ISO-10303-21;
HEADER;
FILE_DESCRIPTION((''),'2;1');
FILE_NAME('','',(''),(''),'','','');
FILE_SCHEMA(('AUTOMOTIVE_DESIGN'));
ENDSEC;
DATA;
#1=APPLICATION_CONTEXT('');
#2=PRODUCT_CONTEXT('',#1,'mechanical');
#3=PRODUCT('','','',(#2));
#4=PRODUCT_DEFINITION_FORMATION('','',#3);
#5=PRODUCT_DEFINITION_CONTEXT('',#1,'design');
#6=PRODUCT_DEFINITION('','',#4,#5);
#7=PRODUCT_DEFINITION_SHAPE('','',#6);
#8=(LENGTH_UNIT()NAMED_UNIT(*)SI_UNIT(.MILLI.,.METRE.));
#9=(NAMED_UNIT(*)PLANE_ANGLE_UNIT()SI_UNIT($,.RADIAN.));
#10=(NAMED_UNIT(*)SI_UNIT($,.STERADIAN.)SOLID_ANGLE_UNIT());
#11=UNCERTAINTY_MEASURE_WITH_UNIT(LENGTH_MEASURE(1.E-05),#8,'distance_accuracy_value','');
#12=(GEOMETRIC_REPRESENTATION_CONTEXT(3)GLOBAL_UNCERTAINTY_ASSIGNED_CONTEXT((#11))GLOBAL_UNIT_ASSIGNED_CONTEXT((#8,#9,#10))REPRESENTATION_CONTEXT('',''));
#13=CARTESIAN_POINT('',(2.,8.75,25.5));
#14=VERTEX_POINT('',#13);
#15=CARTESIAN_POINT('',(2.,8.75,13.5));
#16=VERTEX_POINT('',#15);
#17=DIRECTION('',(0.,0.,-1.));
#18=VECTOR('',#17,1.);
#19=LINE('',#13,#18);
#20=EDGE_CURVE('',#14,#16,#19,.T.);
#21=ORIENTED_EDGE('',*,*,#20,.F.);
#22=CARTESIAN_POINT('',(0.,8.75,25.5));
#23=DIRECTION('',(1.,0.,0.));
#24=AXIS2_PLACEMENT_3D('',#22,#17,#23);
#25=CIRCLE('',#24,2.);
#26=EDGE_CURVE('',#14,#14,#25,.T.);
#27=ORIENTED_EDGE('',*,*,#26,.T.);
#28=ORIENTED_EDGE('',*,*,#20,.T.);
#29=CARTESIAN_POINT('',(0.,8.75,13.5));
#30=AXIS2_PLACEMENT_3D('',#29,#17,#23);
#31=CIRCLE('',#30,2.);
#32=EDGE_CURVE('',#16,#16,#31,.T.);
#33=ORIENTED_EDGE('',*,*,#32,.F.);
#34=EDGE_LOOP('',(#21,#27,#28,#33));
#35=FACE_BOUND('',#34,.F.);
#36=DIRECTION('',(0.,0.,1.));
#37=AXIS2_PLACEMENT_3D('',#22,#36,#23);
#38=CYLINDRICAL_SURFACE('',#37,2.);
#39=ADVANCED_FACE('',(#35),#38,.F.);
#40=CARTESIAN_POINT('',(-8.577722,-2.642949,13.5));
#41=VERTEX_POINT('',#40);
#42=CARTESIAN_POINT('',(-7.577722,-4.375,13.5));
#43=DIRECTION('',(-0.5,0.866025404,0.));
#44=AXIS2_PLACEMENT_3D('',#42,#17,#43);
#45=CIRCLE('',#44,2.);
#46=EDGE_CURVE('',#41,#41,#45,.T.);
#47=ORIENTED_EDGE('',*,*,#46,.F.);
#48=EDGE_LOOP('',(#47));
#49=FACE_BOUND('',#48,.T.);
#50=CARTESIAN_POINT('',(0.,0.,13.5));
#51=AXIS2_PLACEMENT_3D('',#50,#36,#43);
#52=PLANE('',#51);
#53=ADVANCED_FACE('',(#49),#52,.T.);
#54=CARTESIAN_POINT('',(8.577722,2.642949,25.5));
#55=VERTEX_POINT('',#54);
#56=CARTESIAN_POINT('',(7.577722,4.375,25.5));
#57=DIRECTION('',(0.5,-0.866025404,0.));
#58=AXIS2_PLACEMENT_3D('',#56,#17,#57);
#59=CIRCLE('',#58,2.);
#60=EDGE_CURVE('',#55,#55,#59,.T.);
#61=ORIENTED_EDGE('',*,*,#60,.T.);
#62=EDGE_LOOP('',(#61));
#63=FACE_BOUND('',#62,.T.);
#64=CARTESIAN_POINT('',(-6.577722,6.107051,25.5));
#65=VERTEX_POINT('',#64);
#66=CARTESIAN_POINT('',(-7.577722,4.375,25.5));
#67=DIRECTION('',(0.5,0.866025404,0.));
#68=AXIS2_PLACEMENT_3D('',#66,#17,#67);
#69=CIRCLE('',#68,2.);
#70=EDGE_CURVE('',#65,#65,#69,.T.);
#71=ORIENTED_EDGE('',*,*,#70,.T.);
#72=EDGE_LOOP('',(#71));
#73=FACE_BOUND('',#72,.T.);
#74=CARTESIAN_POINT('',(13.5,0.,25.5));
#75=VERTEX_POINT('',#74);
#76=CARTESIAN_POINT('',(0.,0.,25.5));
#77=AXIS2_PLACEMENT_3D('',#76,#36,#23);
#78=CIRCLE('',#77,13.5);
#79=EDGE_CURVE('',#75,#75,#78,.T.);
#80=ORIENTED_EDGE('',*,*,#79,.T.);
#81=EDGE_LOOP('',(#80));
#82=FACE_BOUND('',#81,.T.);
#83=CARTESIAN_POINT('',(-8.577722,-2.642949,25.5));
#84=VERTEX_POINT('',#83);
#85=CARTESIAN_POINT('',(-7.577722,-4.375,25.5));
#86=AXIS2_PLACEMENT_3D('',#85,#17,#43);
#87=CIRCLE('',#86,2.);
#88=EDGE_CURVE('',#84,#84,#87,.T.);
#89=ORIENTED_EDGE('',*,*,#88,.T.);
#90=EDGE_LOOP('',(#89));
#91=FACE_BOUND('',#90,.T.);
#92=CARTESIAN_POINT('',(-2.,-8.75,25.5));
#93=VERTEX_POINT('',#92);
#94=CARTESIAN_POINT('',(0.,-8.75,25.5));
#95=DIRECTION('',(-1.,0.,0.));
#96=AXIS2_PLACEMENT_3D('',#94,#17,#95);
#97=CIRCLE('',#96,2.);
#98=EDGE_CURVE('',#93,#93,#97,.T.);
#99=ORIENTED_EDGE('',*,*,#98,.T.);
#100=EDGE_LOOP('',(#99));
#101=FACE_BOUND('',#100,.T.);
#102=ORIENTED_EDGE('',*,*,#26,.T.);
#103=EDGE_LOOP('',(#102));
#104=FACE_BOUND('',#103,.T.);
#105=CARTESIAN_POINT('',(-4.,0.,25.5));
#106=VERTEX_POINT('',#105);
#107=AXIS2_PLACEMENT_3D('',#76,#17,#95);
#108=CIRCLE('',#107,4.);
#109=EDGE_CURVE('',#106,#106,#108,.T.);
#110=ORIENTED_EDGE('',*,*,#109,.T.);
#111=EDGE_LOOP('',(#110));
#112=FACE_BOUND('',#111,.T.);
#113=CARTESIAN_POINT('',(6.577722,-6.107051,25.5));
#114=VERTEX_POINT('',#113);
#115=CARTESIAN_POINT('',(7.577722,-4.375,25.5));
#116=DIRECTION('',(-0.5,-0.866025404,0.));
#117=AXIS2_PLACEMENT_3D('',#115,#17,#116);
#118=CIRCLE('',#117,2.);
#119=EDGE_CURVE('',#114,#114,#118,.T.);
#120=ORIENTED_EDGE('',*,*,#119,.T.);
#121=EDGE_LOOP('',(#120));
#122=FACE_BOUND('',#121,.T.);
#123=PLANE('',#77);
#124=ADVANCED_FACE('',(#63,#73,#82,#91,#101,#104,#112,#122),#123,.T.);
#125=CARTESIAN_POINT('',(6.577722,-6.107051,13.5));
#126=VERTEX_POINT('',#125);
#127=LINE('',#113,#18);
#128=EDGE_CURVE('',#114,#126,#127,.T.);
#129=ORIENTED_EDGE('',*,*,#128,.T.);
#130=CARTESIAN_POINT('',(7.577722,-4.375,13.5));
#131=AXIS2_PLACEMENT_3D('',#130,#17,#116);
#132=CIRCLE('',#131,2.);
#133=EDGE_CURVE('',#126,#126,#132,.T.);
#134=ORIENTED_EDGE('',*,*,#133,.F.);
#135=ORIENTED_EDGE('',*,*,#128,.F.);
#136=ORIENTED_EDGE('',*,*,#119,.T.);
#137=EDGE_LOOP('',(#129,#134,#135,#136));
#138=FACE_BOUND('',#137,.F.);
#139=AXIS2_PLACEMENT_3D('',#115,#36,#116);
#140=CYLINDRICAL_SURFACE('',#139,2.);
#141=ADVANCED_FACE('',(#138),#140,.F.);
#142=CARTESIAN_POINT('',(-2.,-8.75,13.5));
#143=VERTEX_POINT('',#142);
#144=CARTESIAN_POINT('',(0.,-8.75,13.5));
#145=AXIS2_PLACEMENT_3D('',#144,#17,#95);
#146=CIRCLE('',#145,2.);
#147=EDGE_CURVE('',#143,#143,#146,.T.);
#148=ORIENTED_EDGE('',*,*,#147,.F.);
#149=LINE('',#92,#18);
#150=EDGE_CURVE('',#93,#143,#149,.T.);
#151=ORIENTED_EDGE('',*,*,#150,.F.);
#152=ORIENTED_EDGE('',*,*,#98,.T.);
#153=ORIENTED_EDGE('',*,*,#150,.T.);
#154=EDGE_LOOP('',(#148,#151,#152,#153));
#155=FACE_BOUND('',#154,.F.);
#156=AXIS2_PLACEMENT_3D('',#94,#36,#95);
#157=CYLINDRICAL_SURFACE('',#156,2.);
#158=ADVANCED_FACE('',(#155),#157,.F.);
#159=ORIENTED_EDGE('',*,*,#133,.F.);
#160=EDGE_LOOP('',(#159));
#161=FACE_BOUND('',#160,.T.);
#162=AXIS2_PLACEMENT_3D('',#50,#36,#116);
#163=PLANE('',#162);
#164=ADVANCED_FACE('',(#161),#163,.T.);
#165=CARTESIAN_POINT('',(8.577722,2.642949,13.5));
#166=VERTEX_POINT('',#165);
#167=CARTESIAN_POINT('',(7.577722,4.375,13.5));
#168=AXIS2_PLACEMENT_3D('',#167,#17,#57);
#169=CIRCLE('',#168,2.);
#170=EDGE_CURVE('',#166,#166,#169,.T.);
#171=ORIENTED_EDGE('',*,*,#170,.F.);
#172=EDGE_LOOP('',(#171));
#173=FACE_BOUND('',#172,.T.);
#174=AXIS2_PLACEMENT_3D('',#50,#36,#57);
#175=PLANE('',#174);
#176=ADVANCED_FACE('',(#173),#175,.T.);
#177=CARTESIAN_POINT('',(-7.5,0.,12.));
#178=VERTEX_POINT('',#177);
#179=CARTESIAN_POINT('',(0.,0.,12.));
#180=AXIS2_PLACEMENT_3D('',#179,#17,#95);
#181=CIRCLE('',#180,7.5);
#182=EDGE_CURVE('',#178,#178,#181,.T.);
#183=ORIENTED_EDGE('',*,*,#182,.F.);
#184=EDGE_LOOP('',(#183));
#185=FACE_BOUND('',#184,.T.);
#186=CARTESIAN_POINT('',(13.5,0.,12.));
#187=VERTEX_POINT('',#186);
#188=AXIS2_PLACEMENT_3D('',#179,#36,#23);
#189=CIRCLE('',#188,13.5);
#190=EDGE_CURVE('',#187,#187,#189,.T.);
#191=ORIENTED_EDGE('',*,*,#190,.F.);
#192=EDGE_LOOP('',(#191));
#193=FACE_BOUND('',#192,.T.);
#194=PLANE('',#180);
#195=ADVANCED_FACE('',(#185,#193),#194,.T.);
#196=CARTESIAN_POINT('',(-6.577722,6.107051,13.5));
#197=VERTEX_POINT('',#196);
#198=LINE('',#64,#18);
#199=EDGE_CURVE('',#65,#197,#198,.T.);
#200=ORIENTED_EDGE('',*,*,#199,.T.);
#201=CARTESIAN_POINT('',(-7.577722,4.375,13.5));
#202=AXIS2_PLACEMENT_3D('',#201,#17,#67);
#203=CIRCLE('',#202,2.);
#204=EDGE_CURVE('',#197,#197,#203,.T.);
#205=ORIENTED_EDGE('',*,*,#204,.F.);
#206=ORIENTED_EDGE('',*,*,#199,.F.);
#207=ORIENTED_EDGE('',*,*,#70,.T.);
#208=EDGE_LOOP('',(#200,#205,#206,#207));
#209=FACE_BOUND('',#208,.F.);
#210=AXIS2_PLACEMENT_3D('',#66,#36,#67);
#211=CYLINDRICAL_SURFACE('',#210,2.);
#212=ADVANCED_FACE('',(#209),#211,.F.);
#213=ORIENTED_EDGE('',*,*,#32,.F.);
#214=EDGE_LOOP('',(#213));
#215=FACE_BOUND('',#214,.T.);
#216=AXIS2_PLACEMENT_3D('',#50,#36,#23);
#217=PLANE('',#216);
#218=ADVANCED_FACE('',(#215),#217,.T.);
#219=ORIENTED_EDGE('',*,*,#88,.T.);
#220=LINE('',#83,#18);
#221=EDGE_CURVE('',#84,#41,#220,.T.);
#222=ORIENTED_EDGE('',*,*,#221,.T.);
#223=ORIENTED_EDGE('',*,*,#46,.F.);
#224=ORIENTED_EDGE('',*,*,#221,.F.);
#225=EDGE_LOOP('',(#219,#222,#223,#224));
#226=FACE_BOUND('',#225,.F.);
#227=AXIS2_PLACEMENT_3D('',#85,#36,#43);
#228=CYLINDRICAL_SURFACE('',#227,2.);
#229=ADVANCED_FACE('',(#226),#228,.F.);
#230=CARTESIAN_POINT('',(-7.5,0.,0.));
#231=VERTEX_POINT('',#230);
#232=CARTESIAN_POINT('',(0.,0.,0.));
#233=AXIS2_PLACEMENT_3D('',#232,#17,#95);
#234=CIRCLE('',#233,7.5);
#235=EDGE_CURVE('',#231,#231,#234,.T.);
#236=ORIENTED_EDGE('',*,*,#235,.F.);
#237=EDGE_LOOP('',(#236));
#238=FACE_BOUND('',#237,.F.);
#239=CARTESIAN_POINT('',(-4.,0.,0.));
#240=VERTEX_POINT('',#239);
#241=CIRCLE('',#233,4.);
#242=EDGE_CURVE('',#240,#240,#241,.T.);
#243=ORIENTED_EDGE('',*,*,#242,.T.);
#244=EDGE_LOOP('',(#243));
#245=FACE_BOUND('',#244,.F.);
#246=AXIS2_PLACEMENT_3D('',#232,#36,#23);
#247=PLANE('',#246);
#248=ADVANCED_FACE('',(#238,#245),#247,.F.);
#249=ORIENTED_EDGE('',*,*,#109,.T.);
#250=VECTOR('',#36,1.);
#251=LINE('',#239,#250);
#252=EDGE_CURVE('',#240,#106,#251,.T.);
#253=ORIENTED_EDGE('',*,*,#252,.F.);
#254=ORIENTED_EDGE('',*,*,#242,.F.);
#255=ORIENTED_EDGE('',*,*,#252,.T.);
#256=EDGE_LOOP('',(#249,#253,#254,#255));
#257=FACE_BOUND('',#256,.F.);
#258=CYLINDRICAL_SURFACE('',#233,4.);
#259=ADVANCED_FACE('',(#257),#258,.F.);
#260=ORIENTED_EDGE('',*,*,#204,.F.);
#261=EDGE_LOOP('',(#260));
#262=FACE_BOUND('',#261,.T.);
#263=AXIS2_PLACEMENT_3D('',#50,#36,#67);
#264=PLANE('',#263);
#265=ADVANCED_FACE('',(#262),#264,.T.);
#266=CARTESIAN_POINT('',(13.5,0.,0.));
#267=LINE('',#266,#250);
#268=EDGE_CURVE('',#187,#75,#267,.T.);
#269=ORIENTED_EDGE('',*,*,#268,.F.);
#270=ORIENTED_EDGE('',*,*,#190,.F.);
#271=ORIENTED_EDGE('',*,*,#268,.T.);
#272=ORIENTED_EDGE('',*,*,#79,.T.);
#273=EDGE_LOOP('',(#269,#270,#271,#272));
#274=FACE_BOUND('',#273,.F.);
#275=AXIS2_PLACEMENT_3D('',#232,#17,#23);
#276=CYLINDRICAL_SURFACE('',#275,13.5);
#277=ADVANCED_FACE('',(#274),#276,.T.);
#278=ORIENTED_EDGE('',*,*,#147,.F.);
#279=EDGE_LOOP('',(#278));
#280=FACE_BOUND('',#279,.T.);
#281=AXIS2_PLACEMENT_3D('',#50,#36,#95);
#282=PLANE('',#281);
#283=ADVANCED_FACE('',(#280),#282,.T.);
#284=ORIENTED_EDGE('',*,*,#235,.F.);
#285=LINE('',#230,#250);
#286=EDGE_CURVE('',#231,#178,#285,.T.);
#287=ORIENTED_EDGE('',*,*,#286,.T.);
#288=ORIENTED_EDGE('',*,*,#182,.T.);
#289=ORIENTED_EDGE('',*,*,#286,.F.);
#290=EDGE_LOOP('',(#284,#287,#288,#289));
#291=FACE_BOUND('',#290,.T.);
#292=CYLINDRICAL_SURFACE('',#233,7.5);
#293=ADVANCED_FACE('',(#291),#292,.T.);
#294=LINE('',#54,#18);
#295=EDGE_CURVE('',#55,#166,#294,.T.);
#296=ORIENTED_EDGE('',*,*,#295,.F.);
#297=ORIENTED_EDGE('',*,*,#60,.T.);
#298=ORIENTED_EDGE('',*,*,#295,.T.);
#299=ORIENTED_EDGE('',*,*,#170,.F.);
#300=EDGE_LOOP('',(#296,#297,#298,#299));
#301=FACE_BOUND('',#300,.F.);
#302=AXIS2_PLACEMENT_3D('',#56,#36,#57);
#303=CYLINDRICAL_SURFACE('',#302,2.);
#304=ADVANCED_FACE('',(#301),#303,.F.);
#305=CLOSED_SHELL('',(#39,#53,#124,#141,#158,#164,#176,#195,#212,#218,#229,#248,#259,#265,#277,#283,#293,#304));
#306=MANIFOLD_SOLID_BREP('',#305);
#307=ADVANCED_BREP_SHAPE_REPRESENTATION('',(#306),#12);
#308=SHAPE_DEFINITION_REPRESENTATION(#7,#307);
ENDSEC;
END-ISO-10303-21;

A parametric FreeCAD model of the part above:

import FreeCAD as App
import Part
import Sketcher
from FreeCAD import Vector

doc = App.newDocument("Part")
params = doc.addObject("Spreadsheet::Sheet", "Params")
for row, (alias, value) in enumerate([
    ("sketch1_diameter", "27 mm"),
    ("pad1_length", "25.5 mm"),
    ("sketch2_diameter", "15 mm"),
    ("sketch2_diameter2", "27 mm"),
    ("pocket1_length", "12 mm"),
    ("sketch3_diameter", "8 mm"),
    ("sketch4_diameter", "4 mm"),
    ("pocket3_length", "12 mm"),
], start=1):
    params.set(f"A{row}", alias)
    params.set(f"B{row}", "=" + value)
    params.setAlias(f"B{row}", alias)

body = doc.addObject("PartDesign::Body", "Body")

# Sketch on XY plane
sketch1 = body.newObject("Sketcher::SketchObject", "Sketch")
sketch1.AttachmentSupport = (doc.getObject("XY_Plane"), [""])
sketch1.MapMode = "FlatFace"
sketch1.addGeometry(Part.Circle(Vector(0, 0, 0), Vector(0, 0, 1), 14), False)
sketch1.addConstraint([
    Sketcher.Constraint("Coincident", 0, 3, -1, 1),
    Sketcher.Constraint("Diameter", 0, 27.0),
])
sketch1.setExpression("Constraints[1]", "Params.sketch1_diameter")
pad1 = body.newObject("PartDesign::Pad", "Pad")
pad1.Profile = sketch1
pad1.setExpression("Length", "Params.pad1_length")

# Sketch on XY plane
sketch2 = body.newObject("Sketcher::SketchObject", "Sketch001")
sketch2.AttachmentSupport = (doc.getObject("XY_Plane"), [""])
sketch2.MapMode = "FlatFace"
sketch2.addGeometry([
    Part.Circle(Vector(0, 0, 0), Vector(0, 0, 1), 14),
    Part.Circle(Vector(0, 0, 0), Vector(0, 0, 1), 8),
], False)
sketch2.addConstraint([
    Sketcher.Constraint("Coincident", 0, 3, -1, 1),
    Sketcher.Constraint("Coincident", 1, 3, -1, 1),
    Sketcher.Constraint("Diameter", 1, 15.0),
    Sketcher.Constraint("Diameter", 0, 27.0),
])
sketch2.setExpression("Constraints[2]", "Params.sketch2_diameter")
sketch2.setExpression("Constraints[3]", "Params.sketch2_diameter2")
pocket1 = body.newObject("PartDesign::Pocket", "Pocket")
pocket1.Profile = sketch2
pocket1.setExpression("Length", "Params.pocket1_length")
pocket1.Reversed = True

# Sketch on XY plane
sketch3 = body.newObject("Sketcher::SketchObject", "Sketch002")
sketch3.AttachmentSupport = (doc.getObject("XY_Plane"), [""])
sketch3.MapMode = "FlatFace"
sketch3.addGeometry(Part.Circle(Vector(0, 0, 0), Vector(0, 0, 1), 4), False)
sketch3.addConstraint([
    Sketcher.Constraint("Coincident", 0, 3, -1, 1),
    Sketcher.Constraint("Diameter", 0, 8.0),
])
sketch3.setExpression("Constraints[1]", "Params.sketch3_diameter")
pocket2 = body.newObject("PartDesign::Pocket", "Pocket001")
pocket2.Profile = sketch3
pocket2.Type = "UpToFirst"
pocket2.Reversed = True

# Sketch on XY plane
sketch4 = body.newObject("Sketcher::SketchObject", "Sketch003")
sketch4.AttachmentSupport = (doc.getObject("XY_Plane"), [""])
sketch4.MapMode = "FlatFace"
sketch4.AttachmentOffset = App.Placement(Vector(0, 0, 25.5), App.Rotation())
sketch4.addGeometry(Part.Circle(Vector(0, 8.8, 0), Vector(0, 0, 1), 2), False)
sketch4.addConstraint([
    Sketcher.Constraint("PointOnObject", 0, 3, -2),
    Sketcher.Constraint("Diameter", 0, 4.0),
    Sketcher.Constraint("DistanceY", -1, 1, 0, 3, 8.75),
])
sketch4.setExpression("Constraints[1]", "Params.sketch4_diameter")
pocket3 = body.newObject("PartDesign::Pocket", "Pocket002")
pocket3.Profile = sketch4
pocket3.setExpression("Length", "Params.pocket3_length")
doc.recompute()

polarpattern = body.newObject("PartDesign::PolarPattern", "PolarPattern")
polarpattern.Originals = [pocket3]
polarpattern.Axis = (doc.getObject("Z_Axis"), [""])
polarpattern.Angle = 360
polarpattern.Occurrences = 6
body.Tip = polarpattern

doc.recompute()
